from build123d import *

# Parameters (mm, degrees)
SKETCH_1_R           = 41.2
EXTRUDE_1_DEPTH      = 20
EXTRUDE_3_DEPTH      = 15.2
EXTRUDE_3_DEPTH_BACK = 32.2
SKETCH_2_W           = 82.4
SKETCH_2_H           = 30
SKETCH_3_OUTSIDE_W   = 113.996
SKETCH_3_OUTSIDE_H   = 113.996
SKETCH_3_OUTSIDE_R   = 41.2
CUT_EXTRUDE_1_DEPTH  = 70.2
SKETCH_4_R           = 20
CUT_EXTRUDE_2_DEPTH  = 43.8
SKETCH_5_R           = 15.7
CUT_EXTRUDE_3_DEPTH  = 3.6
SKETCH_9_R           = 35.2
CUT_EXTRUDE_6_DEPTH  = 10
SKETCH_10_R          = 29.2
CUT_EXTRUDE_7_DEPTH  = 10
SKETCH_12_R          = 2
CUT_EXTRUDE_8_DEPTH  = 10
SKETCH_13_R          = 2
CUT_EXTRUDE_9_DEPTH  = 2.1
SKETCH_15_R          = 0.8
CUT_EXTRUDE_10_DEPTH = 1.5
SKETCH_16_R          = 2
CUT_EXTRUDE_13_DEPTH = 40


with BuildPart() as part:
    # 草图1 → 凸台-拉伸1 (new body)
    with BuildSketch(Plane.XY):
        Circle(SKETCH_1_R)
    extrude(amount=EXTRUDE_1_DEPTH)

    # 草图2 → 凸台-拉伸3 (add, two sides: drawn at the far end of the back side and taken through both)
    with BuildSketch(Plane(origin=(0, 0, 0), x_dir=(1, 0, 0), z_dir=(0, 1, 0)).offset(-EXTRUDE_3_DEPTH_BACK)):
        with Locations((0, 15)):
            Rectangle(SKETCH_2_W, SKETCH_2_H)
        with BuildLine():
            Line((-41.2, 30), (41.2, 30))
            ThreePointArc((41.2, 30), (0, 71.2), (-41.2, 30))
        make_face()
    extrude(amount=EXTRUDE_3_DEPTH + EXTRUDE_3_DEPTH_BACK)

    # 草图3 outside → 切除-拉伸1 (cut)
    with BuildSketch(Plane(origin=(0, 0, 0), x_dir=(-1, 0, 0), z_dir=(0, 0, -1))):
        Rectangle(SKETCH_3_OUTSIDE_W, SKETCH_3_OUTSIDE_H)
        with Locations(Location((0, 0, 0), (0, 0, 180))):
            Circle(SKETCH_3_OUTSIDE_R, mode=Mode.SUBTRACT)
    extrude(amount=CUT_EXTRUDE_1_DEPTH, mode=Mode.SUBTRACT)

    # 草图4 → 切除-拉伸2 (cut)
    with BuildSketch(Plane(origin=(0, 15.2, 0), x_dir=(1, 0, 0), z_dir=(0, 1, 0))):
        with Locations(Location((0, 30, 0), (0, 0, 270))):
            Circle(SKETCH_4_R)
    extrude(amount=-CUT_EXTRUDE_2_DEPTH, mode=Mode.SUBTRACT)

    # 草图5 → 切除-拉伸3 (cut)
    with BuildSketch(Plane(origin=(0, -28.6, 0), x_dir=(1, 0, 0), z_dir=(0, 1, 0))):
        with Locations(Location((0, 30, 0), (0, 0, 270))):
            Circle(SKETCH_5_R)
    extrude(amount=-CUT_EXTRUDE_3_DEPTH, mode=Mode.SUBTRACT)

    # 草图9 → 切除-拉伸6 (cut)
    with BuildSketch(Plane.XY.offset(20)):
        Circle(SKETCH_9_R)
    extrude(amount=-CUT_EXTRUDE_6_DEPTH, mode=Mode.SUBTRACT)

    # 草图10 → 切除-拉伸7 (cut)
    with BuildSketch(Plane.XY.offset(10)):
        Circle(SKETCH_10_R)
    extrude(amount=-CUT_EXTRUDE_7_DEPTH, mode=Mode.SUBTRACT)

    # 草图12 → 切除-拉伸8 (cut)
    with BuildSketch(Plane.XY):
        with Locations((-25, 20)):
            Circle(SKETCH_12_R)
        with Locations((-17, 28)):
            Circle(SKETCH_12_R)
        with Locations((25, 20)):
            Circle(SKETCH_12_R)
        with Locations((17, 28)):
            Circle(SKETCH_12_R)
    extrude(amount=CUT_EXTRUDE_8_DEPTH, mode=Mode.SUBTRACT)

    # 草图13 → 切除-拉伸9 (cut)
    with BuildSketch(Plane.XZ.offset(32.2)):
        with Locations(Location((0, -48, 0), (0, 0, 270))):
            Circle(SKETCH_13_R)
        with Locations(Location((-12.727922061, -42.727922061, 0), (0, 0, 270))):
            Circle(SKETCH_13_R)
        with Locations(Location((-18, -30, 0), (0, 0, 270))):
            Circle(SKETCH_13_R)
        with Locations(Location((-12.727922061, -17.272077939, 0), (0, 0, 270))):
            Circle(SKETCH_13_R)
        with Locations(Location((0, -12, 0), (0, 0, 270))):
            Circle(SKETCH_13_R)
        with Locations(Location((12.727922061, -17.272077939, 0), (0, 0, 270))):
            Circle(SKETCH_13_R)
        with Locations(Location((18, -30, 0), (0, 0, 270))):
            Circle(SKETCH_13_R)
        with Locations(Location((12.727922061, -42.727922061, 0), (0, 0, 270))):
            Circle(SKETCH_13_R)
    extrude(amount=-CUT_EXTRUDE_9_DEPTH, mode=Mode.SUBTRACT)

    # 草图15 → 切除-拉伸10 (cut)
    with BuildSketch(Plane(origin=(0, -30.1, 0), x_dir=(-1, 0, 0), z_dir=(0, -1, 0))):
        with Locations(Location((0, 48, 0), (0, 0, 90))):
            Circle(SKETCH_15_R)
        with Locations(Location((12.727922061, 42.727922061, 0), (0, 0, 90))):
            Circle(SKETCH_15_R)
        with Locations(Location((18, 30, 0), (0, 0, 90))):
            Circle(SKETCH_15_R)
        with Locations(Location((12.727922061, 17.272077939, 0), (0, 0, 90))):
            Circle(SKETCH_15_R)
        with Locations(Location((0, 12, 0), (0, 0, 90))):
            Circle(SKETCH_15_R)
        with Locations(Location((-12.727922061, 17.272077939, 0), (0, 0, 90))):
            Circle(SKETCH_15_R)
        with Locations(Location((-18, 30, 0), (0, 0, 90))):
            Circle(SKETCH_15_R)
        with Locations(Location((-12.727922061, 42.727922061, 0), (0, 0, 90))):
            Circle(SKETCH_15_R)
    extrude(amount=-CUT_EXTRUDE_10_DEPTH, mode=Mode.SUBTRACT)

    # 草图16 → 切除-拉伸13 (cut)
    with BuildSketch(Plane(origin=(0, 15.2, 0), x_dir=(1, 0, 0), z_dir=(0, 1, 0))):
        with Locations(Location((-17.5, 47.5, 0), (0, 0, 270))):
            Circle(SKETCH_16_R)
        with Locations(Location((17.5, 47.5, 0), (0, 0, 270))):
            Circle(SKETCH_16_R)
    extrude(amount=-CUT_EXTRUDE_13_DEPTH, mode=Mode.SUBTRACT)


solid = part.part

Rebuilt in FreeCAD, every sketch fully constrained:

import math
import FreeCAD as App
import Part
import Sketcher


def add_polygon(sketch, points):
    """Adds a closed chain of lines whose ends are joined by coincident constraints."""
    first, n = sketch.GeometryCount, len(points)
    for a, b in zip(points, points[1:] + points[:1]):
        sketch.addGeometry(Part.LineSegment(App.Vector(*a, 0), App.Vector(*b, 0)), False)
    for i in range(n):
        sketch.addConstraint(Sketcher.Constraint("Coincident", first + i, 2, first + (i + 1) % n, 1))

doc = App.newDocument("Part")
body = doc.addObject("PartDesign::Body", "Body")

sketch1 = body.newObject("Sketcher::SketchObject", "Sketch")
sketch1.AttachmentSupport = (doc.getObject("XY_Plane"), [""])
sketch1.MapMode = "FlatFace"
sketch1.addGeometry(Part.Circle(App.Vector(0, 0, 0), App.Vector(0, 0, 1), 41.2), False)
sketch1.addConstraint(Sketcher.Constraint("Coincident", 0, 3, -1, 1))
sketch1.addConstraint(Sketcher.Constraint("Diameter", 0, 82.4))
pad1 = body.newObject("PartDesign::Pad", "Pad")
pad1.Profile = sketch1
pad1.Length = 20

sketch2 = body.newObject("Sketcher::SketchObject", "Sketch001")
sketch2.AttachmentSupport = (doc.getObject("XZ_Plane"), [""])
sketch2.MapMode = "FlatFace"
sketch2.addGeometry(Part.LineSegment(App.Vector(-41.2, -30, 0), App.Vector(-41.2, 0, 0)), False)
sketch2.addGeometry(Part.LineSegment(App.Vector(-41.2, 0, 0), App.Vector(41.2, 0, 0)), False)
sketch2.addGeometry(Part.LineSegment(App.Vector(41.2, 0, 0), App.Vector(41.2, -30, 0)), False)
sketch2.addGeometry(Part.ArcOfCircle(Part.Circle(App.Vector(0, -30, 0), App.Vector(0, 0, 1), 41.2), math.radians(180), math.radians(360)), False)
sketch2.addConstraint(Sketcher.Constraint("Coincident", 0, 2, 1, 1))
sketch2.addConstraint(Sketcher.Constraint("Coincident", 1, 2, 2, 1))
sketch2.addConstraint(Sketcher.Constraint("Tangent", 2, 2, 3, 2))
sketch2.addConstraint(Sketcher.Constraint("Tangent", 3, 1, 0, 1))
sketch2.addConstraint(Sketcher.Constraint("Vertical", 0))
sketch2.addConstraint(Sketcher.Constraint("Horizontal", 1))
sketch2.addConstraint(Sketcher.Constraint("Vertical", 2))
sketch2.addConstraint(Sketcher.Constraint("Symmetric", 0, 2, 1, 2, -1, 1))
sketch2.addConstraint(Sketcher.Constraint("Radius", 3, 41.2))
sketch2.addConstraint(Sketcher.Constraint("DistanceY", 0, 1, 0, 2, 30.0))
pad2 = body.newObject("PartDesign::Pad", "Pad001")
pad2.Profile = sketch2
pad2.Type = "TwoLengths"
pad2.Length = 15.2
pad2.Length2 = 32.2
pad2.Reversed = True

sketch3 = body.newObject("Sketcher::SketchObject", "Sketch002")
sketch3.AttachmentSupport = (doc.getObject("XY_Plane"), [""])
sketch3.MapMode = "FlatFace"
add_polygon(sketch3, [(56.998, 56.998), (56.998, -56.998), (-56.998, -56.998), (-56.998, 56.998)])
sketch3.addGeometry(Part.Circle(App.Vector(0, 0, 0), App.Vector(0, 0, 1), 41.2), False)
sketch3.addConstraint(Sketcher.Constraint("Vertical", 0))
sketch3.addConstraint(Sketcher.Constraint("Horizontal", 1))
sketch3.addConstraint(Sketcher.Constraint("Vertical", 2))
sketch3.addConstraint(Sketcher.Constraint("Horizontal", 3))
sketch3.addConstraint(Sketcher.Constraint("Coincident", 4, 3, -1, 1))
sketch3.addConstraint(Sketcher.Constraint("Symmetric", 0, 2, 2, 2, -1, 1))
sketch3.addConstraint(Sketcher.Constraint("Equal", 3, 0))
sketch3.addConstraint(Sketcher.Constraint("Diameter", 4, 82.4))
sketch3.addConstraint(Sketcher.Constraint("DistanceX", 1, 2, 1, 1, 113.996))
pocket1 = body.newObject("PartDesign::Pocket", "Pocket")
pocket1.Profile = sketch3
pocket1.Length = 70.2

sketch4 = body.newObject("Sketcher::SketchObject", "Sketch003")
sketch4.AttachmentSupport = (doc.getObject("XZ_Plane"), [""])
sketch4.MapMode = "FlatFace"
sketch4.AttachmentOffset = App.Placement(App.Vector(0, 0, -15.2), App.Rotation())
sketch4.addGeometry(Part.Circle(App.Vector(0, -30, 0), App.Vector(0, 0, 1), 20), False)
sketch4.addConstraint(Sketcher.Constraint("PointOnObject", 0, 3, -2))
sketch4.addConstraint(Sketcher.Constraint("Diameter", 0, 40.0))
sketch4.addConstraint(Sketcher.Constraint("DistanceY", 0, 3, -1, 1, 30.0))
pocket2 = body.newObject("PartDesign::Pocket", "Pocket001")
pocket2.Profile = sketch4
pocket2.Length = 43.8
pocket2.Reversed = True

sketch5 = body.newObject("Sketcher::SketchObject", "Sketch004")
sketch5.AttachmentSupport = (doc.getObject("XZ_Plane"), [""])
sketch5.MapMode = "FlatFace"
sketch5.AttachmentOffset = App.Placement(App.Vector(0, 0, 28.6), App.Rotation())
sketch5.addGeometry(Part.Circle(App.Vector(0, -30, 0), App.Vector(0, 0, 1), 15.7), False)
sketch5.addConstraint(Sketcher.Constraint("PointOnObject", 0, 3, -2))
sketch5.addConstraint(Sketcher.Constraint("Diameter", 0, 31.4))
sketch5.addConstraint(Sketcher.Constraint("DistanceY", 0, 3, -1, 1, 30.0))
pocket3 = body.newObject("PartDesign::Pocket", "Pocket002")
pocket3.Profile = sketch5
pocket3.Length = 3.6
pocket3.Reversed = True

sketch6 = body.newObject("Sketcher::SketchObject", "Sketch005")
sketch6.AttachmentSupport = (doc.getObject("XY_Plane"), [""])
sketch6.MapMode = "FlatFace"
sketch6.AttachmentOffset = App.Placement(App.Vector(0, 0, 20), App.Rotation())
sketch6.addGeometry(Part.Circle(App.Vector(0, 0, 0), App.Vector(0, 0, 1), 35.2), False)
sketch6.addConstraint(Sketcher.Constraint("Coincident", 0, 3, -1, 1))
sketch6.addConstraint(Sketcher.Constraint("Diameter", 0, 70.4))
pocket4 = body.newObject("PartDesign::Pocket", "Pocket003")
pocket4.Profile = sketch6
pocket4.Length = 10

sketch7 = body.newObject("Sketcher::SketchObject", "Sketch006")
sketch7.AttachmentSupport = (doc.getObject("XY_Plane"), [""])
sketch7.MapMode = "FlatFace"
sketch7.AttachmentOffset = App.Placement(App.Vector(0, 0, 10), App.Rotation())
sketch7.addGeometry(Part.Circle(App.Vector(0, 0, 0), App.Vector(0, 0, 1), 29.2), False)
sketch7.addConstraint(Sketcher.Constraint("Coincident", 0, 3, -1, 1))
sketch7.addConstraint(Sketcher.Constraint("Diameter", 0, 58.4))
pocket5 = body.newObject("PartDesign::Pocket", "Pocket004")
pocket5.Profile = sketch7
pocket5.Length = 10

sketch8 = body.newObject("Sketcher::SketchObject", "Sketch007")
sketch8.AttachmentSupport = (doc.getObject("XY_Plane"), [""])
sketch8.MapMode = "FlatFace"
sketch8.addGeometry(Part.Circle(App.Vector(-25, 20, 0), App.Vector(0, 0, 1), 2), False)
sketch8.addGeometry(Part.Circle(App.Vector(-17, 28, 0), App.Vector(0, 0, 1), 2), False)
sketch8.addGeometry(Part.Circle(App.Vector(25, 20, 0), App.Vector(0, 0, 1), 2), False)
sketch8.addGeometry(Part.Circle(App.Vector(17, 28, 0), App.Vector(0, 0, 1), 2), False)
sketch8.addConstraint(Sketcher.Constraint("Equal", 0, 1))
sketch8.addConstraint(Sketcher.Constraint("Equal", 1, 2))
sketch8.addConstraint(Sketcher.Constraint("Equal", 2, 3))
sketch8.addConstraint(Sketcher.Constraint("Symmetric", 0, 3, 2, 3, -2))
sketch8.addConstraint(Sketcher.Constraint("Symmetric", 1, 3, 3, 3, -2))
sketch8.addConstraint(Sketcher.Constraint("Diameter", 0, 4.0))
sketch8.addConstraint(Sketcher.Constraint("DistanceX", 0, 3, -1, 1, 25.0))
sketch8.addConstraint(Sketcher.Constraint("DistanceY", -1, 1, 0, 3, 20.0))
sketch8.addConstraint(Sketcher.Constraint("DistanceX", 1, 3, -1, 1, 17.0))
sketch8.addConstraint(Sketcher.Constraint("DistanceY", -1, 1, 1, 3, 28.0))
pocket6 = body.newObject("PartDesign::Pocket", "Pocket005")
pocket6.Profile = sketch8
pocket6.Length = 10
pocket6.Reversed = True

sketch9 = body.newObject("Sketcher::SketchObject", "Sketch008")
sketch9.AttachmentSupport = (doc.getObject("XZ_Plane"), [""])
sketch9.MapMode = "FlatFace"
sketch9.AttachmentOffset = App.Placement(App.Vector(0, 0, 32.2), App.Rotation())
sketch9.addGeometry(Part.Circle(App.Vector(0, -48, 0), App.Vector(0, 0, 1), 2), False)
sketch9.addGeometry(Part.Circle(App.Vector(-12.727922, -42.727922, 0), App.Vector(0, 0, 1), 2), False)
sketch9.addGeometry(Part.Circle(App.Vector(-18, -30, 0), App.Vector(0, 0, 1), 2), False)
sketch9.addGeometry(Part.Circle(App.Vector(-12.727922, -17.272078, 0), App.Vector(0, 0, 1), 2), False)
sketch9.addGeometry(Part.Circle(App.Vector(0, -12, 0), App.Vector(0, 0, 1), 2), False)
sketch9.addGeometry(Part.Circle(App.Vector(12.727922, -17.272078, 0), App.Vector(0, 0, 1), 2), False)
sketch9.addGeometry(Part.Circle(App.Vector(18, -30, 0), App.Vector(0, 0, 1), 2), False)
sketch9.addGeometry(Part.Circle(App.Vector(12.727922, -42.727922, 0), App.Vector(0, 0, 1), 2), False)
sketch9.addConstraint(Sketcher.Constraint("Equal", 0, 1))
sketch9.addConstraint(Sketcher.Constraint("Equal", 1, 2))
sketch9.addConstraint(Sketcher.Constraint("Equal", 2, 3))
sketch9.addConstraint(Sketcher.Constraint("Equal", 3, 4))
sketch9.addConstraint(Sketcher.Constraint("Equal", 4, 5))
sketch9.addConstraint(Sketcher.Constraint("Equal", 5, 6))
sketch9.addConstraint(Sketcher.Constraint("Equal", 6, 7))
sketch9.addConstraint(Sketcher.Constraint("Symmetric", 3, 3, 5, 3, -2))
sketch9.addConstraint(Sketcher.Constraint("Symmetric", 2, 3, 6, 3, -2))
sketch9.addConstraint(Sketcher.Constraint("Symmetric", 1, 3, 7, 3, -2))
sketch9.addConstraint(Sketcher.Constraint("PointOnObject", 0, 3, -2))
sketch9.addConstraint(Sketcher.Constraint("PointOnObject", 4, 3, -2))
sketch9.addConstraint(Sketcher.Constraint("Vertical", 1, 3, 3, 3))
sketch9.addConstraint(Sketcher.Constraint("Diameter", 0, 4.0))
sketch9.addConstraint(Sketcher.Constraint("DistanceY", 0, 3, -1, 1, 48.0))
sketch9.addConstraint(Sketcher.Constraint("DistanceX", 2, 3, -1, 1, 18.0))
sketch9.addConstraint(Sketcher.Constraint("DistanceY", 2, 3, -1, 1, 30.0))
sketch9.addConstraint(Sketcher.Constraint("DistanceY", 4, 3, -1, 1, 12.0))
sketch9.addConstraint(Sketcher.Constraint("DistanceX", 1, 3, -1, 1, 12.727922))
sketch9.addConstraint(Sketcher.Constraint("DistanceY", 1, 3, -1, 1, 42.727922))
sketch9.addConstraint(Sketcher.Constraint("DistanceY", 3, 3, -1, 1, 17.272078))
pocket7 = body.newObject("PartDesign::Pocket", "Pocket006")
pocket7.Profile = sketch9
pocket7.Length = 2.1

sketch10 = body.newObject("Sketcher::SketchObject", "Sketch009")
sketch10.AttachmentSupport = (doc.getObject("XZ_Plane"), [""])
sketch10.MapMode = "FlatFace"
sketch10.AttachmentOffset = App.Placement(App.Vector(0, 0, 30.1), App.Rotation())
sketch10.addGeometry(Part.Circle(App.Vector(0, -48, 0), App.Vector(0, 0, 1), 0.8), False)
sketch10.addGeometry(Part.Circle(App.Vector(-12.727922, -42.727922, 0), App.Vector(0, 0, 1), 0.8), False)
sketch10.addGeometry(Part.Circle(App.Vector(-18, -30, 0), App.Vector(0, 0, 1), 0.8), False)
sketch10.addGeometry(Part.Circle(App.Vector(-12.727922, -17.272078, 0), App.Vector(0, 0, 1), 0.8), False)
sketch10.addGeometry(Part.Circle(App.Vector(0, -12, 0), App.Vector(0, 0, 1), 0.8), False)
sketch10.addGeometry(Part.Circle(App.Vector(12.727922, -17.272078, 0), App.Vector(0, 0, 1), 0.8), False)
sketch10.addGeometry(Part.Circle(App.Vector(18, -30, 0), App.Vector(0, 0, 1), 0.8), False)
sketch10.addGeometry(Part.Circle(App.Vector(12.727922, -42.727922, 0), App.Vector(0, 0, 1), 0.8), False)
sketch10.addConstraint(Sketcher.Constraint("Equal", 0, 1))
sketch10.addConstraint(Sketcher.Constraint("Equal", 1, 2))
sketch10.addConstraint(Sketcher.Constraint("Equal", 2, 3))
sketch10.addConstraint(Sketcher.Constraint("Equal", 3, 4))
sketch10.addConstraint(Sketcher.Constraint("Equal", 4, 5))
sketch10.addConstraint(Sketcher.Constraint("Equal", 5, 6))
sketch10.addConstraint(Sketcher.Constraint("Equal", 6, 7))
sketch10.addConstraint(Sketcher.Constraint("Symmetric", 3, 3, 5, 3, -2))
sketch10.addConstraint(Sketcher.Constraint("Symmetric", 2, 3, 6, 3, -2))
sketch10.addConstraint(Sketcher.Constraint("Symmetric", 1, 3, 7, 3, -2))
sketch10.addConstraint(Sketcher.Constraint("PointOnObject", 0, 3, -2))
sketch10.addConstraint(Sketcher.Constraint("PointOnObject", 4, 3, -2))
sketch10.addConstraint(Sketcher.Constraint("Vertical", 1, 3, 3, 3))
sketch10.addConstraint(Sketcher.Constraint("Diameter", 0, 1.6))
sketch10.addConstraint(Sketcher.Constraint("DistanceY", 0, 3, -1, 1, 48.0))
sketch10.addConstraint(Sketcher.Constraint("DistanceX", 2, 3, -1, 1, 18.0))
sketch10.addConstraint(Sketcher.Constraint("DistanceY", 2, 3, -1, 1, 30.0))
sketch10.addConstraint(Sketcher.Constraint("DistanceY", 4, 3, -1, 1, 12.0))
sketch10.addConstraint(Sketcher.Constraint("DistanceX", 1, 3, -1, 1, 12.727922))
sketch10.addConstraint(Sketcher.Constraint("DistanceY", 1, 3, -1, 1, 42.727922))
sketch10.addConstraint(Sketcher.Constraint("DistanceY", 3, 3, -1, 1, 17.272078))
pocket8 = body.newObject("PartDesign::Pocket", "Pocket007")
pocket8.Profile = sketch10
pocket8.Length = 1.5

sketch11 = body.newObject("Sketcher::SketchObject", "Sketch010")
sketch11.AttachmentSupport = (doc.getObject("XZ_Plane"), [""])
sketch11.MapMode = "FlatFace"
sketch11.AttachmentOffset = App.Placement(App.Vector(0, 0, -15.2), App.Rotation())
sketch11.addGeometry(Part.Circle(App.Vector(-17.5, -47.5, 0), App.Vector(0, 0, 1), 2), False)
sketch11.addGeometry(Part.Circle(App.Vector(17.5, -47.5, 0), App.Vector(0, 0, 1), 2), False)
sketch11.addConstraint(Sketcher.Constraint("Equal", 0, 1))
sketch11.addConstraint(Sketcher.Constraint("Symmetric", 0, 3, 1, 3, -2))
sketch11.addConstraint(Sketcher.Constraint("Diameter", 0, 4.0))
sketch11.addConstraint(Sketcher.Constraint("DistanceX", 0, 3, 1, 3, 35.0))
sketch11.addConstraint(Sketcher.Constraint("DistanceY", 0, 3, -1, 1, 47.5))
pocket9 = body.newObject("PartDesign::Pocket", "Pocket008")
pocket9.Profile = sketch11
pocket9.Length = 40
pocket9.Reversed = True

doc.recompute()
